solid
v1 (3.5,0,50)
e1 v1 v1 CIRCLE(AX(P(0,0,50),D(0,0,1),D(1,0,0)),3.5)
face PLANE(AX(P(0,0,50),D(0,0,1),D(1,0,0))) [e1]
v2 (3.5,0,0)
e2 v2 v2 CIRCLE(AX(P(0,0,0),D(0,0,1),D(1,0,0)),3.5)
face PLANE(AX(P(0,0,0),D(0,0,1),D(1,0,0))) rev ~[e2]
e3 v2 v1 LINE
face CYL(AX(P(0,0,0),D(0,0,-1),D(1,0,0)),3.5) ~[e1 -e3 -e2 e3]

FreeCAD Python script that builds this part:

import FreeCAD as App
import Part
import Sketcher
from FreeCAD import Vector

doc = App.newDocument("Part")
body = doc.addObject("PartDesign::Body", "Body")

sketch1 = body.newObject("Sketcher::SketchObject", "Sketch")
sketch1.AttachmentSupport = (doc.getObject("XY_Plane"), [""])
sketch1.MapMode = "FlatFace"
sketch1.addGeometry(Part.Circle(Vector(0, 0, 0), Vector(0, 0, 1), 3.5), False)
sketch1.addConstraint([
    Sketcher.Constraint("Coincident", 0, 3, -1, 1),
    Sketcher.Constraint("Diameter", 0, 7.0),
])
pad1 = body.newObject("PartDesign::Pad", "Pad")
pad1.Profile = sketch1
pad1.Length = 50

doc.recompute()
